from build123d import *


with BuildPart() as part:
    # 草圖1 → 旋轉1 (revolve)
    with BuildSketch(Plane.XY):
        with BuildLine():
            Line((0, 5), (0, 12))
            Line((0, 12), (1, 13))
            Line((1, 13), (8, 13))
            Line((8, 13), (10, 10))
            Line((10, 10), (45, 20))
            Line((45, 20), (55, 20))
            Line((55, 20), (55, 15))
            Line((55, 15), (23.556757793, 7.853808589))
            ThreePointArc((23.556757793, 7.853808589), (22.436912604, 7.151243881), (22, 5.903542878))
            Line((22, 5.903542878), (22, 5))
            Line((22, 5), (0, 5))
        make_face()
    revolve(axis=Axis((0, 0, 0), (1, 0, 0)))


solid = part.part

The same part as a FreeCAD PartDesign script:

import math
import FreeCAD as App
import Part
import Sketcher
from FreeCAD import Vector
Q = App.Units.Quantity

doc = App.newDocument("Part")
params = doc.addObject("Spreadsheet::Sheet", "Params")
for row, (alias, value) in enumerate([
    ("sketch1_radius", "2 mm"),
    ("sketch1_width", "22 mm"),
    ("sketch1_width2", "10 mm"),
    ("sketch1_width3", "7 mm"),
    ("sketch1_height", "5 mm"),
    ("revolution_angle", "360 deg"),
], start=1):
    params.set(f"A{row}", alias)
    params.set(f"B{row}", "=" + value)
    params.setAlias(f"B{row}", alias)

body = doc.addObject("PartDesign::Body", "Body")

# Sketch on XY plane
sketch1 = body.newObject("Sketcher::SketchObject", "Sketch")
sketch1.AttachmentSupport = (doc.getObject("XY_Plane"), [""])
sketch1.MapMode = "FlatFace"
sketch1.addGeometry([
    Part.LineSegment(Vector(0, 12, 0), Vector(0, 5, 0)),  # 0
    Part.LineSegment(Vector(0, 5, 0), Vector(22, 5, 0)),  # 1
    Part.LineSegment(Vector(22, 5, 0), Vector(22, 5.9, 0)),  # 2
    Part.ArcOfCircle(Part.Circle(Vector(24, 5.9, 0), Vector(0, 0, 1), 2), math.radians(103), math.radians(180)),  # 3
    Part.LineSegment(Vector(23.6, 7.9, 0), Vector(55, 15, 0)),  # 4
    Part.LineSegment(Vector(55, 15, 0), Vector(55, 20, 0)),  # 5
    Part.LineSegment(Vector(55, 20, 0), Vector(45, 20, 0)),  # 6
    Part.LineSegment(Vector(45, 20, 0), Vector(10, 10, 0)),  # 7
    Part.LineSegment(Vector(10, 10, 0), Vector(8, 13, 0)),  # 8
    Part.LineSegment(Vector(8, 13, 0), Vector(1, 13, 0)),  # 9
    Part.LineSegment(Vector(1, 13, 0), Vector(0, 12, 0)),  # 10
], False)
sketch1.addConstraint([
    Sketcher.Constraint("Coincident", 0, 2, 1, 1),
    Sketcher.Constraint("Coincident", 1, 2, 2, 1),
    Sketcher.Constraint("Tangent", 2, 2, 3, 2),
    Sketcher.Constraint("Tangent", 3, 1, 4, 1),
    Sketcher.Constraint("Coincident", 4, 2, 5, 1),
    Sketcher.Constraint("Coincident", 5, 2, 6, 1),
    Sketcher.Constraint("Coincident", 6, 2, 7, 1),
    Sketcher.Constraint("Coincident", 7, 2, 8, 1),
    Sketcher.Constraint("Coincident", 8, 2, 9, 1),
    Sketcher.Constraint("Coincident", 9, 2, 10, 1),
    Sketcher.Constraint("Coincident", 10, 2, 0, 1),
    Sketcher.Constraint("Vertical", 0),
    Sketcher.Constraint("Horizontal", 1),
    Sketcher.Constraint("Vertical", 2),
    Sketcher.Constraint("Vertical", 5),
    Sketcher.Constraint("Horizontal", 6),
    Sketcher.Constraint("Horizontal", 9),
    Sketcher.Constraint("PointOnObject", 0, 2, -2),
    Sketcher.Constraint("Equal", 9, 0),
    Sketcher.Constraint("Radius", 3, 2.0),
    Sketcher.Constraint("DistanceX", 1, 1, 1, 2, 22.0),
    Sketcher.Constraint("DistanceX", 6, 2, 6, 1, 10.0),
    Sketcher.Constraint("DistanceX", 9, 2, 9, 1, 7.0),
    Sketcher.Constraint("DistanceY", 5, 1, 5, 2, 5.0),
    Sketcher.Constraint("Angle", 10, Q("-135 deg")),
    Sketcher.Constraint("DistanceY", -1, 1, 0, 2, 5.0),
    Sketcher.Constraint("DistanceX", -1, 1, 4, 2, 55.0),
    Sketcher.Constraint("DistanceY", -1, 1, 4, 2, 15.0),
    Sketcher.Constraint("DistanceX", -1, 1, 7, 2, 10.0),
    Sketcher.Constraint("DistanceY", -1, 1, 7, 2, 10.0),
    Sketcher.Constraint("DistanceX", -1, 1, 8, 2, 8.0),
    Sketcher.Constraint("DistanceY", 2, 1, 2, 2, 0.903543),
])
sketch1.setExpression("Constraints[19]", "Params.sketch1_radius")
sketch1.setExpression("Constraints[20]", "Params.sketch1_width")
sketch1.setExpression("Constraints[21]", "Params.sketch1_width2")
sketch1.setExpression("Constraints[22]", "Params.sketch1_width3")
sketch1.setExpression("Constraints[23]", "Params.sketch1_height")
revolution = body.newObject("PartDesign::Revolution", "Revolution")
revolution.Profile = sketch1
revolution.ReferenceAxis = (sketch1, ["H_Axis"])
revolution.setExpression("Angle", "Params.revolution_angle")

doc.recompute()
